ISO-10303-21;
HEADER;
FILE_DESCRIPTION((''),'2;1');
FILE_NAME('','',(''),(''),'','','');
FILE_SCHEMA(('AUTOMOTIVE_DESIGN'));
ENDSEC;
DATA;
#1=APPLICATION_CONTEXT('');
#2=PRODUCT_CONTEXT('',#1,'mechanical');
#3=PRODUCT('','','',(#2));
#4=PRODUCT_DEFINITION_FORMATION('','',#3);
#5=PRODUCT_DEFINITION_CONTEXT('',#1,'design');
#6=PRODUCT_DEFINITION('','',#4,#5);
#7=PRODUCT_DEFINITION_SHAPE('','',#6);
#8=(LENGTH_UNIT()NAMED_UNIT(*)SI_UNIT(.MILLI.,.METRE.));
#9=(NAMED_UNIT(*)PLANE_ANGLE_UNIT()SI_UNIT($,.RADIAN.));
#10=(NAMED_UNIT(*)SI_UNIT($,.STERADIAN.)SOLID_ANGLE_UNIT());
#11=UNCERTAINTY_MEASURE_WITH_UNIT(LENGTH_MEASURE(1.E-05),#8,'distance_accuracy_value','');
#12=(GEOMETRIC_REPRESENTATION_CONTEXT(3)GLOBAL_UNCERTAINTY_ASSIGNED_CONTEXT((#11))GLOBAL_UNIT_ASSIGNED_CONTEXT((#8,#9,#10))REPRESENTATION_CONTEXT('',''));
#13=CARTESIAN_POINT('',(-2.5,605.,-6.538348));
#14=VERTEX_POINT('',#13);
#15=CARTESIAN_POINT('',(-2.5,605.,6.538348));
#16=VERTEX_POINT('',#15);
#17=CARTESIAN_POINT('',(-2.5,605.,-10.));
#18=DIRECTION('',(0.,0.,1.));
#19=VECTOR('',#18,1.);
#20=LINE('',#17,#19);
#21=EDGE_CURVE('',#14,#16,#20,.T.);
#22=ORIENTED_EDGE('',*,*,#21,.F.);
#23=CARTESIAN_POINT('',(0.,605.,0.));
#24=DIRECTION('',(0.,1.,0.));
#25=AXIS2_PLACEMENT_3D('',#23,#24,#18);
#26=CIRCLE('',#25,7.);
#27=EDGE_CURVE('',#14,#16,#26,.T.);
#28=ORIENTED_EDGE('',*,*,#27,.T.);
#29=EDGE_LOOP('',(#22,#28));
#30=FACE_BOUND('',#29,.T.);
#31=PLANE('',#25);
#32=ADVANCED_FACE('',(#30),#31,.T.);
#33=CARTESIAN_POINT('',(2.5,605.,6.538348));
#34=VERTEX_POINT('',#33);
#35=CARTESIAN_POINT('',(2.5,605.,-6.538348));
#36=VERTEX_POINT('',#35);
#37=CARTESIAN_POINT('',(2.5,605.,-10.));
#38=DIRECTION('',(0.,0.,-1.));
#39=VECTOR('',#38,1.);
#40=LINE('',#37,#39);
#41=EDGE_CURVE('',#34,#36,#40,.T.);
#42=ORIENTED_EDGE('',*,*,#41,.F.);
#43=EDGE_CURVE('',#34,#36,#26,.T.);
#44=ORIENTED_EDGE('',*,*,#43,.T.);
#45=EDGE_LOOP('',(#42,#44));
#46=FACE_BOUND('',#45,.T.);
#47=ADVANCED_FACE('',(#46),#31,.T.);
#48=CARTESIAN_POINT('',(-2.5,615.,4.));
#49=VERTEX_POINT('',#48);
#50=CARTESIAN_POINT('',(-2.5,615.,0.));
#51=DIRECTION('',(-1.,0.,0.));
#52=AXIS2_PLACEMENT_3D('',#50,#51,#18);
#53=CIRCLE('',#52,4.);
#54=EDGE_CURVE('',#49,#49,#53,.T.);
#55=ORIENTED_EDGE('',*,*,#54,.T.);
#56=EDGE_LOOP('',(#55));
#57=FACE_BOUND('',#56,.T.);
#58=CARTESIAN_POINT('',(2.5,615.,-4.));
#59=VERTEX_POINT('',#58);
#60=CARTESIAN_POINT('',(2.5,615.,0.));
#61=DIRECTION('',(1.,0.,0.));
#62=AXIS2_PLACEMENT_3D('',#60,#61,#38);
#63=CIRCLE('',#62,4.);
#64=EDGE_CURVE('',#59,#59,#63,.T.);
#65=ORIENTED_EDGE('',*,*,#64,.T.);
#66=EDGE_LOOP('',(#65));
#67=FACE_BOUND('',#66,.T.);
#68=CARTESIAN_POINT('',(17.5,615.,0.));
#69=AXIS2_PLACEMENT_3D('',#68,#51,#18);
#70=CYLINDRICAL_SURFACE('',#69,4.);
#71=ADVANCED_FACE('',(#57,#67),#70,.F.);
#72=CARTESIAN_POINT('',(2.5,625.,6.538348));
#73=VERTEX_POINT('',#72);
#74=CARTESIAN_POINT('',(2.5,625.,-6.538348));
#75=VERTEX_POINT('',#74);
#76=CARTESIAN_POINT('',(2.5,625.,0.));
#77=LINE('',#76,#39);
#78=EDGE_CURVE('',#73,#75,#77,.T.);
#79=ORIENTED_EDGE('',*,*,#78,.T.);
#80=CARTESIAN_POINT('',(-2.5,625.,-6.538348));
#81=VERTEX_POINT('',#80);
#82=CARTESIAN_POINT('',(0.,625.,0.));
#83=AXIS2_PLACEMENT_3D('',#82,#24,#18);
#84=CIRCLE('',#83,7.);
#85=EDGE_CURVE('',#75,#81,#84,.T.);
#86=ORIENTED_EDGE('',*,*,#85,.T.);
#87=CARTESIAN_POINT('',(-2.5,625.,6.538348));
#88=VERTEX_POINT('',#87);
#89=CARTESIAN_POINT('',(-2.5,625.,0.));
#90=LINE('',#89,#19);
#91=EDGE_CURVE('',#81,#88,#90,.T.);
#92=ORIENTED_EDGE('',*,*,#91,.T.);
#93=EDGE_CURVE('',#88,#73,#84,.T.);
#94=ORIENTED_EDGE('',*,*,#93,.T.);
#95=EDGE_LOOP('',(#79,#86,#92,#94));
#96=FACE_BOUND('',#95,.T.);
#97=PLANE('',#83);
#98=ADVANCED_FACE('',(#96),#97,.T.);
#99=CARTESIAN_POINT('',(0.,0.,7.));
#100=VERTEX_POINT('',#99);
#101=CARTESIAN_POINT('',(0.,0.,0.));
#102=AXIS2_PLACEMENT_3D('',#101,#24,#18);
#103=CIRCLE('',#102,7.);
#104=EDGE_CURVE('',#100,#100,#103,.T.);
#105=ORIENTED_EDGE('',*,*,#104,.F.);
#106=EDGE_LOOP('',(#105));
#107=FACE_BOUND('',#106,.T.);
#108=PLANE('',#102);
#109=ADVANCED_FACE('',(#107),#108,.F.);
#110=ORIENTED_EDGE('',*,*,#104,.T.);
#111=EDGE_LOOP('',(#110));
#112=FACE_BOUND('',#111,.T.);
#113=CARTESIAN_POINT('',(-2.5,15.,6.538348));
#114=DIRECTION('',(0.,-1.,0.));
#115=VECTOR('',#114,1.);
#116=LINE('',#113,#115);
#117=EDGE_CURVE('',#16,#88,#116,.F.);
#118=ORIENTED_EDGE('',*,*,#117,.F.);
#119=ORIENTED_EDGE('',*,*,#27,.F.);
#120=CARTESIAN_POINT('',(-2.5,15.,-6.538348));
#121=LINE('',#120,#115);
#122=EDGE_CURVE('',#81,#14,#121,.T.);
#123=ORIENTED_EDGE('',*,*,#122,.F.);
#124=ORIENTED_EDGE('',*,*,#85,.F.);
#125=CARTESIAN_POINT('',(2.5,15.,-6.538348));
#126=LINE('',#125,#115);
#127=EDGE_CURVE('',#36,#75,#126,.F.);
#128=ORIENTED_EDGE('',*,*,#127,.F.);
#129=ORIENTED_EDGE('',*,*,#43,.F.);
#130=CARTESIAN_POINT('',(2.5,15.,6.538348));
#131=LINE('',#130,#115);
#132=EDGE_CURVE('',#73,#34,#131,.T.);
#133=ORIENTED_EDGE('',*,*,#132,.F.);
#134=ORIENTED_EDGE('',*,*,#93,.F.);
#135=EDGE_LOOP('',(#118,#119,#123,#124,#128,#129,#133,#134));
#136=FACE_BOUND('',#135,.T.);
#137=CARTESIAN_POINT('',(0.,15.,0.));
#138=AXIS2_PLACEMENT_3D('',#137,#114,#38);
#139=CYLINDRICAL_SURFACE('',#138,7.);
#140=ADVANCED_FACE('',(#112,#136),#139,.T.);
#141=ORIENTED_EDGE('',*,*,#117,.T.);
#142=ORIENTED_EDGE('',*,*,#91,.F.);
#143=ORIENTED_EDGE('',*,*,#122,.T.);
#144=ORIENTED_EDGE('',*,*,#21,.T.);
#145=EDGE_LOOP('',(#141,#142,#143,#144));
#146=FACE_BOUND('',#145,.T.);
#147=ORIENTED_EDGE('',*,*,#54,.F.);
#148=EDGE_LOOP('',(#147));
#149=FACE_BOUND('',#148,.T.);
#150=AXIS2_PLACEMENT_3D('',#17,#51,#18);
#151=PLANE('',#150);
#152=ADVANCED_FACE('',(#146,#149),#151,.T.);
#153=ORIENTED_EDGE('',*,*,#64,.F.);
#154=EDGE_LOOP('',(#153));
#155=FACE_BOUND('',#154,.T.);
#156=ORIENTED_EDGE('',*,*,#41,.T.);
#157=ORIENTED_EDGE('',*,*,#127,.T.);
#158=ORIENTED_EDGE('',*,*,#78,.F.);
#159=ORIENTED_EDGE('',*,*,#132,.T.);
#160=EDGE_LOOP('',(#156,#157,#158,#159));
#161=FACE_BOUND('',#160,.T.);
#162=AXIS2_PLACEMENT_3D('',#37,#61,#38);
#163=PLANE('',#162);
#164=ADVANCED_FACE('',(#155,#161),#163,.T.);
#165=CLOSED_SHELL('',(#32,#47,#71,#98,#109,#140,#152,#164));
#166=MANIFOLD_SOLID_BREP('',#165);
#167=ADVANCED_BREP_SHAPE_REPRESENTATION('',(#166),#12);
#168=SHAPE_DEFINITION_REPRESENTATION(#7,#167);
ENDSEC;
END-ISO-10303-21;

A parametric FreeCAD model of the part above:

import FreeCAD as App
import Part
import Sketcher

V = App.Vector

doc = App.newDocument("Part")
body = doc.addObject("PartDesign::Body", "Body")

sketch1 = doc.addObject("Sketcher::SketchObject", "Sketch")
body.addObject(sketch1)
sketch1.AttachmentSupport = (doc.XZ_Plane, [""])
sketch1.MapMode = "FlatFace"
sketch1.addGeometry(Part.Circle(V(0, 0, 0), V(0, 0, 1), 7), False)
sketch1.addConstraint(Sketcher.Constraint("Coincident", 0, 3, -1, 1))
sketch1.addConstraint(Sketcher.Constraint("Diameter", 0, 14.0))
pad1 = doc.addObject("PartDesign::Pad", "Pad")
body.addObject(pad1)
pad1.Profile = sketch1
pad1.Length = 15
pad1.Reversed = True

sketch2 = doc.addObject("Sketcher::SketchObject", "Sketch001")
body.addObject(sketch2)
sketch2.AttachmentSupport = (doc.XZ_Plane, [""])
sketch2.MapMode = "FlatFace"
sketch2.AttachmentOffset = App.Placement(V(0, 0, -15), App.Rotation())
sketch2.addGeometry(Part.Circle(V(0, 0, 0), V(0, 0, 1), 7), False)
sketch2.addConstraint(Sketcher.Constraint("Coincident", 0, 3, -1, 1))
sketch2.addConstraint(Sketcher.Constraint("Diameter", 0, 14.0))
pad2 = doc.addObject("PartDesign::Pad", "Pad001")
body.addObject(pad2)
pad2.Profile = sketch2
pad2.Length = 610
pad2.Reversed = True

sketch3 = doc.addObject("Sketcher::SketchObject", "Sketch002")
body.addObject(sketch3)
sketch3.AttachmentSupport = (doc.XZ_Plane, [""])
sketch3.MapMode = "FlatFace"
sketch3.AttachmentOffset = App.Placement(V(0, 0, -625), App.Rotation())
sketch3.addGeometry(Part.LineSegment(V(-71, -71, 0), V(-71, 71, 0)), False)
sketch3.addGeometry(Part.LineSegment(V(-71, 71, 0), V(71, 71, 0)), False)
sketch3.addGeometry(Part.LineSegment(V(71, 71, 0), V(71, -71, 0)), False)
sketch3.addGeometry(Part.LineSegment(V(71, -71, 0), V(-71, -71, 0)), False)
sketch3.addGeometry(Part.LineSegment(V(2, 10, 0), V(-2, 10, 0)), False)
sketch3.addGeometry(Part.LineSegment(V(-2, 10, 0), V(-2, -10, 0)), False)
sketch3.addGeometry(Part.LineSegment(V(-2, -10, 0), V(2, -10, 0)), False)
sketch3.addGeometry(Part.LineSegment(V(2, -10, 0), V(2, 10, 0)), False)
sketch3.addConstraint(Sketcher.Constraint("Coincident", 0, 2, 1, 1))
sketch3.addConstraint(Sketcher.Constraint("Coincident", 1, 2, 2, 1))
sketch3.addConstraint(Sketcher.Constraint("Coincident", 2, 2, 3, 1))
sketch3.addConstraint(Sketcher.Constraint("Coincident", 3, 2, 0, 1))
sketch3.addConstraint(Sketcher.Constraint("Coincident", 4, 2, 5, 1))
sketch3.addConstraint(Sketcher.Constraint("Coincident", 5, 2, 6, 1))
sketch3.addConstraint(Sketcher.Constraint("Coincident", 6, 2, 7, 1))
sketch3.addConstraint(Sketcher.Constraint("Coincident", 7, 2, 4, 1))
sketch3.addConstraint(Sketcher.Constraint("Vertical", 0))
sketch3.addConstraint(Sketcher.Constraint("Horizontal", 1))
sketch3.addConstraint(Sketcher.Constraint("Vertical", 2))
sketch3.addConstraint(Sketcher.Constraint("Horizontal", 3))
sketch3.addConstraint(Sketcher.Constraint("Horizontal", 4))
sketch3.addConstraint(Sketcher.Constraint("Vertical", 5))
sketch3.addConstraint(Sketcher.Constraint("Horizontal", 6))
sketch3.addConstraint(Sketcher.Constraint("Vertical", 7))
sketch3.addConstraint(Sketcher.Constraint("Symmetric", 0, 2, 2, 2, -1, 1))
sketch3.addConstraint(Sketcher.Constraint("Symmetric", 4, 2, 6, 2, -1, 1))
sketch3.addConstraint(Sketcher.Constraint("Equal", 3, 0))
sketch3.addConstraint(Sketcher.Constraint("DistanceX", 4, 2, 4, 1, 5.0))
sketch3.addConstraint(Sketcher.Constraint("DistanceY", 5, 2, 5, 1, 20.0))
sketch3.addConstraint(Sketcher.Constraint("DistanceX", 1, 1, 1, 2, 141.062))
pocket1 = doc.addObject("PartDesign::Pocket", "Pocket")
body.addObject(pocket1)
pocket1.Profile = sketch3
pocket1.Length = 20
pocket1.Reversed = True

sketch4 = doc.addObject("Sketcher::SketchObject", "Sketch003")
body.addObject(sketch4)
sketch4.AttachmentSupport = (doc.YZ_Plane, [""])
sketch4.MapMode = "FlatFace"
sketch4.AttachmentOffset = App.Placement(V(0, 0, -2.5), App.Rotation())
sketch4.addGeometry(Part.Circle(V(615, 0, 0), V(0, 0, 1), 4), False)
sketch4.addConstraint(Sketcher.Constraint("PointOnObject", 0, 3, -1))
sketch4.addConstraint(Sketcher.Constraint("Diameter", 0, 8.0))
sketch4.addConstraint(Sketcher.Constraint("DistanceX", -1, 1, 0, 3, 615.0))
pocket2 = doc.addObject("PartDesign::Pocket", "Pocket001")
body.addObject(pocket2)
pocket2.Profile = sketch4
pocket2.Length = 20
pocket2.Reversed = True

doc.recompute()
